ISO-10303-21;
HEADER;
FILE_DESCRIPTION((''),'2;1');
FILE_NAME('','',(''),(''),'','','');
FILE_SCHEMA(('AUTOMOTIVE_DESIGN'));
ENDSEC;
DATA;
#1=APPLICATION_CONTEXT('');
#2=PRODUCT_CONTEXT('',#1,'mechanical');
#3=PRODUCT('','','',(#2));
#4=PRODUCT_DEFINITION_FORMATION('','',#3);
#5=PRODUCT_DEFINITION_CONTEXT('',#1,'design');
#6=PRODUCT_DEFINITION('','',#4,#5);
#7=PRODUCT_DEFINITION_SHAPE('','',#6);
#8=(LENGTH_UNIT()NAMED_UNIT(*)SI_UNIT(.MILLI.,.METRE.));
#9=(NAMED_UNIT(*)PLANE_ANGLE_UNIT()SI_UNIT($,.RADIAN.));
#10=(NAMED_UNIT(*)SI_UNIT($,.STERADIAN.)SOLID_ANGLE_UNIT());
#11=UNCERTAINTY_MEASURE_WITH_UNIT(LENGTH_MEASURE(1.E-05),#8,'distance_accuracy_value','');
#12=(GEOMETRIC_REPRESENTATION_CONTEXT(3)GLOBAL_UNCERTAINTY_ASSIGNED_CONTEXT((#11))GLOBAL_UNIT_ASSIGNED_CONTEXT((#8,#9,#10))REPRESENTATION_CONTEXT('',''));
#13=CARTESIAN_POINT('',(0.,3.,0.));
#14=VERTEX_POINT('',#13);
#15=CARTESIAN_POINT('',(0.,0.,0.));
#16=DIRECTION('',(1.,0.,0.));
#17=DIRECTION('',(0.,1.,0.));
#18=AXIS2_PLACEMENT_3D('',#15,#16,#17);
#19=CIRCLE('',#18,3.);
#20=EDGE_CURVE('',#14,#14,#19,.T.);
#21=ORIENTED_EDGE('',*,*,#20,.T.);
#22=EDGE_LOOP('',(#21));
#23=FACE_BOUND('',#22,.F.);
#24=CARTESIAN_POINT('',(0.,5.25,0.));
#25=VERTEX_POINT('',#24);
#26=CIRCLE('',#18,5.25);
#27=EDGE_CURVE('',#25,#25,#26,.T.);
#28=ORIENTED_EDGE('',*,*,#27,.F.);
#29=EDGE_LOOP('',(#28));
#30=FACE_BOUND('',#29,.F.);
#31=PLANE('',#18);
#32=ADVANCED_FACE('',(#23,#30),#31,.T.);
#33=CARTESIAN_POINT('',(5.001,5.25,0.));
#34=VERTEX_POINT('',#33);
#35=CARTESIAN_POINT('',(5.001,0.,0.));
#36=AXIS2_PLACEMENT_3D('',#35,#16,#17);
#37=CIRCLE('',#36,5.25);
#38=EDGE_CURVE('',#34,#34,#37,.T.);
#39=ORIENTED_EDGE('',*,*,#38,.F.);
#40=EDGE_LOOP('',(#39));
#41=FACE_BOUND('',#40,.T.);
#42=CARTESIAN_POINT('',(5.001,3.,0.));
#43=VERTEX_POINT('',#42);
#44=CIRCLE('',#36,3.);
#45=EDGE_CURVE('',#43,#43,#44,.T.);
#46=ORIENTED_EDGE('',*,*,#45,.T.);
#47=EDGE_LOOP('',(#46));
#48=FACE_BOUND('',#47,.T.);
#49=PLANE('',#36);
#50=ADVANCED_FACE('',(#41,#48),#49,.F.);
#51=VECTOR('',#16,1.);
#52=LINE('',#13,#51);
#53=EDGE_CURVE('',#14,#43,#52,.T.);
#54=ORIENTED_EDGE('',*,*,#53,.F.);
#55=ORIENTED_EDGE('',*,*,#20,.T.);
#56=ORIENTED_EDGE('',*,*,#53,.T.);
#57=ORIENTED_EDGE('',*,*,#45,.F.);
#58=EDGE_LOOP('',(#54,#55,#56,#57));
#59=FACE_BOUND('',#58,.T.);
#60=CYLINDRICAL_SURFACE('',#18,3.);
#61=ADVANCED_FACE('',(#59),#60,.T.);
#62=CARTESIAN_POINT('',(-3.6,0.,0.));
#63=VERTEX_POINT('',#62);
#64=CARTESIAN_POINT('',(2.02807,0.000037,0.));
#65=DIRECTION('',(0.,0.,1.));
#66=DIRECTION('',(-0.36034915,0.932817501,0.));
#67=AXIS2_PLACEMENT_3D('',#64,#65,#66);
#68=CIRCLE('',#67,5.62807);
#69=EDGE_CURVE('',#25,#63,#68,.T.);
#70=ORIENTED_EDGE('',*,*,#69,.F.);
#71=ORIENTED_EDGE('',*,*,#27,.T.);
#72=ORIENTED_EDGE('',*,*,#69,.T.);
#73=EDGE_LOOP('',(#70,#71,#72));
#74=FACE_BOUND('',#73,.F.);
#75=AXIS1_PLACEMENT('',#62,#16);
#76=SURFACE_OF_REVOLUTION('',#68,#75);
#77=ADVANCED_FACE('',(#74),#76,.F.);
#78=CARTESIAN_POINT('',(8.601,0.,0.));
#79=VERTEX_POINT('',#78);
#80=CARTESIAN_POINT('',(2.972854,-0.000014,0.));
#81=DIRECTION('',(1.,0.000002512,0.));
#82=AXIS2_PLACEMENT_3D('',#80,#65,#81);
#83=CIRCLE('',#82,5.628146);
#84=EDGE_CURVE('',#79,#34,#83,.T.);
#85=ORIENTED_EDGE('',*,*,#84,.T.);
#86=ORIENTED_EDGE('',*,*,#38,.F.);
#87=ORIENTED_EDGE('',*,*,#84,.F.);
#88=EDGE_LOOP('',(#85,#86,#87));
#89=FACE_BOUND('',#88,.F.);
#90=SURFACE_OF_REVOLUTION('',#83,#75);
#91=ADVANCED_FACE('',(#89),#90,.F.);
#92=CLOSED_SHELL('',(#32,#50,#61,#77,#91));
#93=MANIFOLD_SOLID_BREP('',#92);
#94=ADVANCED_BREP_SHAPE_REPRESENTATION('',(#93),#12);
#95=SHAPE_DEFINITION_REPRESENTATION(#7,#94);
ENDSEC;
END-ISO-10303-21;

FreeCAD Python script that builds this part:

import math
import FreeCAD as App
import Part
import Sketcher

V = App.Vector
Q = App.Units.Quantity

doc = App.newDocument("Part")
body = doc.addObject("PartDesign::Body", "Body")

# Sketch on XY plane
sketch1 = body.newObject("Sketcher::SketchObject", "Sketch")
sketch1.AttachmentSupport = (doc.getObject("XY_Plane"), [""])
sketch1.MapMode = "FlatFace"
sketch1.addGeometry([
    Part.LineSegment(V(5, 3, 0), V(0, 3, 0)),  # 0
    Part.LineSegment(V(0, 3, 0), V(0, 5.2, 0)),  # 1
    Part.ArcOfCircle(Part.Circle(V(2, 0, 0), V(0, 0, 1), 5.6), math.radians(111), math.radians(180)),  # 2
    Part.LineSegment(V(-3.6, 0, 0), V(8.6, 0, 0)),  # 3
    Part.ArcOfCircle(Part.Circle(V(3, 0, 0), V(0, 0, 1), 5.6), math.radians(0), math.radians(69)),  # 4
    Part.LineSegment(V(5, 5.2, 0), V(5, 3, 0)),  # 5
], False)
sketch1.addConstraint([
    Sketcher.Constraint("Coincident", 0, 2, 1, 1),
    Sketcher.Constraint("Coincident", 1, 2, 2, 1),
    Sketcher.Constraint("Coincident", 2, 2, 3, 1),
    Sketcher.Constraint("Coincident", 3, 2, 4, 1),
    Sketcher.Constraint("Coincident", 4, 2, 5, 1),
    Sketcher.Constraint("Coincident", 5, 2, 0, 1),
    Sketcher.Constraint("Horizontal", 0),
    Sketcher.Constraint("Vertical", 1),
    Sketcher.Constraint("Horizontal", 3),
    Sketcher.Constraint("Vertical", 5),
    Sketcher.Constraint("Equal", 2, 4),
    Sketcher.Constraint("PointOnObject", 2, 3, -1),
    Sketcher.Constraint("PointOnObject", 4, 3, -1),
    Sketcher.Constraint("PointOnObject", 0, 2, -2),
    Sketcher.Constraint("PointOnObject", 2, 2, -1),
    Sketcher.Constraint("Horizontal", 1, 2, 4, 2),
    Sketcher.Constraint("DistanceX", 2, 2, -1, 1, Q("3.6 mm")),
    Sketcher.Constraint("DistanceX", 0, 2, 0, 1, Q("5.001 mm")),
    Sketcher.Constraint("DistanceY", -1, 1, 0, 2, Q("3 mm")),
    Sketcher.Constraint("Radius", 2, Q("5.628 mm")),
])
revolution = body.newObject("PartDesign::Revolution", "Revolution")
revolution.Profile = sketch1
revolution.ReferenceAxis = (sketch1, ["H_Axis"])
revolution.Angle = 360

doc.recompute()
